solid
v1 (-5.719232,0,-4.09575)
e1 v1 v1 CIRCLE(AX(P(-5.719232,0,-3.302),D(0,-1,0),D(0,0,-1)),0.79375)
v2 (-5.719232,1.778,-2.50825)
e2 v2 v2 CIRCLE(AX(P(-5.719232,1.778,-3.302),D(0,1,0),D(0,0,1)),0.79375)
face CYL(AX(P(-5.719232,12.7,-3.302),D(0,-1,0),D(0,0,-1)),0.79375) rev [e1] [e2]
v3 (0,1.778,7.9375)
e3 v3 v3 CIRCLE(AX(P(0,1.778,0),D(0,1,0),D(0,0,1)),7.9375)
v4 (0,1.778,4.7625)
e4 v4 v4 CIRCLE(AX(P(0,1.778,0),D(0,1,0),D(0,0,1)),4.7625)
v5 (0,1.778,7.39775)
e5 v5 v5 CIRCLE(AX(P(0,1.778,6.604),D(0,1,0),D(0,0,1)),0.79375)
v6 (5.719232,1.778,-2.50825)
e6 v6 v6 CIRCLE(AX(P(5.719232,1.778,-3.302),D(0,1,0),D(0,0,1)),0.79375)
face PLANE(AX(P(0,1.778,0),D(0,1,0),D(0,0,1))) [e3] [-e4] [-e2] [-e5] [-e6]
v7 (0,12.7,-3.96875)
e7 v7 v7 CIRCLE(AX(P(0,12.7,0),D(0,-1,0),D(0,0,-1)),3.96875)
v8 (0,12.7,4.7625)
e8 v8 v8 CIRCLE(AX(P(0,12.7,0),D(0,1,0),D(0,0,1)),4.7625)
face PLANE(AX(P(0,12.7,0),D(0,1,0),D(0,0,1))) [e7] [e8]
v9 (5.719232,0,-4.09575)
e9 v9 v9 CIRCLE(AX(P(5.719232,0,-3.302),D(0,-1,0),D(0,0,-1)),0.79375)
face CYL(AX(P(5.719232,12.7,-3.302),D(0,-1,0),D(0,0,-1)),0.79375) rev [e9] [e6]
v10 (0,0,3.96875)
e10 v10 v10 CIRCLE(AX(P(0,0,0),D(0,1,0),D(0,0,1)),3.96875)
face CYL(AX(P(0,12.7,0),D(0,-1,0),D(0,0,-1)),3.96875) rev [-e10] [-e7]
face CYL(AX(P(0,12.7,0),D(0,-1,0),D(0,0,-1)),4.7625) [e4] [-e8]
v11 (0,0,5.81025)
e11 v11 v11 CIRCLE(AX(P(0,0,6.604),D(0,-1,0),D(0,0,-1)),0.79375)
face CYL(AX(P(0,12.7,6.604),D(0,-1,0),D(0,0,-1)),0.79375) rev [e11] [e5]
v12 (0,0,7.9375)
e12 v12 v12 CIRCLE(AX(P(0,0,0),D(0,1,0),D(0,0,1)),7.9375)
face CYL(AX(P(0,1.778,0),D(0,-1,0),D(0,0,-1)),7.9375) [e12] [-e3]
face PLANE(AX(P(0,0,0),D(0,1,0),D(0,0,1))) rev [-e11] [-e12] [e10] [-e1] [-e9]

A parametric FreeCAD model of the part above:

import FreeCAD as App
import Part
import Sketcher
Q = App.Units.Quantity

doc = App.newDocument("Part")
body = doc.addObject("PartDesign::Body", "Body")

sketch1 = body.newObject("Sketcher::SketchObject", "Sketch")
sketch1.AttachmentSupport = (doc.getObject("XZ_Plane"), [""])
sketch1.MapMode = "FlatFace"
sketch1.addGeometry(Part.Circle(App.Vector(0, 0, 0), App.Vector(0, 0, 1), 8), False)
sketch1.addConstraint(Sketcher.Constraint("Coincident", 0, 3, -1, 1))
sketch1.addConstraint(Sketcher.Constraint("Diameter", 0, Q("0.625 in")))
pad1 = body.newObject("PartDesign::Pad", "Pad")
pad1.Profile = sketch1
pad1.Length = Q("0.07 in")
pad1.Reversed = True

sketch2 = body.newObject("Sketcher::SketchObject", "Sketch001")
sketch2.AttachmentSupport = (doc.getObject("XZ_Plane"), [""])
sketch2.MapMode = "FlatFace"
sketch2.AttachmentOffset = App.Placement(App.Vector(0, 0, -0.07 * 25.4), App.Rotation())
sketch2.addGeometry(Part.Circle(App.Vector(0, 0, 0), App.Vector(0, 0, 1), 4.8), False)
sketch2.addConstraint(Sketcher.Constraint("Coincident", 0, 3, -1, 1))
sketch2.addConstraint(Sketcher.Constraint("Diameter", 0, Q("0.375 in")))
pad2 = body.newObject("PartDesign::Pad", "Pad001")
pad2.Profile = sketch2
pad2.Length = Q("0.43 in")
pad2.Reversed = True

sketch3 = body.newObject("Sketcher::SketchObject", "Sketch002")
sketch3.AttachmentSupport = (doc.getObject("XZ_Plane"), [""])
sketch3.MapMode = "FlatFace"
sketch3.addGeometry(Part.Circle(App.Vector(0, 0, 0), App.Vector(0, 0, 1), 4), False)
sketch3.addConstraint(Sketcher.Constraint("Coincident", 0, 3, -1, 1))
sketch3.addConstraint(Sketcher.Constraint("Diameter", 0, Q("0.3125 in")))
pocket1 = body.newObject("PartDesign::Pocket", "Pocket")
pocket1.Profile = sketch3
pocket1.Type = "ThroughAll"
pocket1.Midplane = True

sketch4 = body.newObject("Sketcher::SketchObject", "Sketch003")
sketch4.AttachmentSupport = (doc.getObject("XZ_Plane"), [""])
sketch4.MapMode = "FlatFace"
sketch4.addGeometry(Part.Circle(App.Vector(0, 6.6, 0), App.Vector(0, 0, 1), 0.8), False)
sketch4.addGeometry(Part.Circle(App.Vector(5.7, -3.3, 0), App.Vector(0, 0, 1), 0.8), False)
sketch4.addGeometry(Part.Circle(App.Vector(-5.7, -3.3, 0), App.Vector(0, 0, 1), 0.8), False)
sketch4.addConstraint(Sketcher.Constraint("Equal", 0, 1))
sketch4.addConstraint(Sketcher.Constraint("Equal", 1, 2))
sketch4.addConstraint(Sketcher.Constraint("Symmetric", 1, 3, 2, 3, -2))
sketch4.addConstraint(Sketcher.Constraint("PointOnObject", 0, 3, -2))
sketch4.addConstraint(Sketcher.Constraint("Diameter", 0, Q("0.0625 in")))
sketch4.addConstraint(Sketcher.Constraint("DistanceY", -1, 1, 0, 3, Q("0.26 in")))
sketch4.addConstraint(Sketcher.Constraint("DistanceY", 1, 3, -1, 1, Q("0.13 in")))
sketch4.addConstraint(Sketcher.Constraint("DistanceX", -1, 1, 1, 3, Q("5.719232 mm")))
pocket2 = body.newObject("PartDesign::Pocket", "Pocket001")
pocket2.Profile = sketch4
pocket2.Type = "ThroughAll"

doc.recompute()
